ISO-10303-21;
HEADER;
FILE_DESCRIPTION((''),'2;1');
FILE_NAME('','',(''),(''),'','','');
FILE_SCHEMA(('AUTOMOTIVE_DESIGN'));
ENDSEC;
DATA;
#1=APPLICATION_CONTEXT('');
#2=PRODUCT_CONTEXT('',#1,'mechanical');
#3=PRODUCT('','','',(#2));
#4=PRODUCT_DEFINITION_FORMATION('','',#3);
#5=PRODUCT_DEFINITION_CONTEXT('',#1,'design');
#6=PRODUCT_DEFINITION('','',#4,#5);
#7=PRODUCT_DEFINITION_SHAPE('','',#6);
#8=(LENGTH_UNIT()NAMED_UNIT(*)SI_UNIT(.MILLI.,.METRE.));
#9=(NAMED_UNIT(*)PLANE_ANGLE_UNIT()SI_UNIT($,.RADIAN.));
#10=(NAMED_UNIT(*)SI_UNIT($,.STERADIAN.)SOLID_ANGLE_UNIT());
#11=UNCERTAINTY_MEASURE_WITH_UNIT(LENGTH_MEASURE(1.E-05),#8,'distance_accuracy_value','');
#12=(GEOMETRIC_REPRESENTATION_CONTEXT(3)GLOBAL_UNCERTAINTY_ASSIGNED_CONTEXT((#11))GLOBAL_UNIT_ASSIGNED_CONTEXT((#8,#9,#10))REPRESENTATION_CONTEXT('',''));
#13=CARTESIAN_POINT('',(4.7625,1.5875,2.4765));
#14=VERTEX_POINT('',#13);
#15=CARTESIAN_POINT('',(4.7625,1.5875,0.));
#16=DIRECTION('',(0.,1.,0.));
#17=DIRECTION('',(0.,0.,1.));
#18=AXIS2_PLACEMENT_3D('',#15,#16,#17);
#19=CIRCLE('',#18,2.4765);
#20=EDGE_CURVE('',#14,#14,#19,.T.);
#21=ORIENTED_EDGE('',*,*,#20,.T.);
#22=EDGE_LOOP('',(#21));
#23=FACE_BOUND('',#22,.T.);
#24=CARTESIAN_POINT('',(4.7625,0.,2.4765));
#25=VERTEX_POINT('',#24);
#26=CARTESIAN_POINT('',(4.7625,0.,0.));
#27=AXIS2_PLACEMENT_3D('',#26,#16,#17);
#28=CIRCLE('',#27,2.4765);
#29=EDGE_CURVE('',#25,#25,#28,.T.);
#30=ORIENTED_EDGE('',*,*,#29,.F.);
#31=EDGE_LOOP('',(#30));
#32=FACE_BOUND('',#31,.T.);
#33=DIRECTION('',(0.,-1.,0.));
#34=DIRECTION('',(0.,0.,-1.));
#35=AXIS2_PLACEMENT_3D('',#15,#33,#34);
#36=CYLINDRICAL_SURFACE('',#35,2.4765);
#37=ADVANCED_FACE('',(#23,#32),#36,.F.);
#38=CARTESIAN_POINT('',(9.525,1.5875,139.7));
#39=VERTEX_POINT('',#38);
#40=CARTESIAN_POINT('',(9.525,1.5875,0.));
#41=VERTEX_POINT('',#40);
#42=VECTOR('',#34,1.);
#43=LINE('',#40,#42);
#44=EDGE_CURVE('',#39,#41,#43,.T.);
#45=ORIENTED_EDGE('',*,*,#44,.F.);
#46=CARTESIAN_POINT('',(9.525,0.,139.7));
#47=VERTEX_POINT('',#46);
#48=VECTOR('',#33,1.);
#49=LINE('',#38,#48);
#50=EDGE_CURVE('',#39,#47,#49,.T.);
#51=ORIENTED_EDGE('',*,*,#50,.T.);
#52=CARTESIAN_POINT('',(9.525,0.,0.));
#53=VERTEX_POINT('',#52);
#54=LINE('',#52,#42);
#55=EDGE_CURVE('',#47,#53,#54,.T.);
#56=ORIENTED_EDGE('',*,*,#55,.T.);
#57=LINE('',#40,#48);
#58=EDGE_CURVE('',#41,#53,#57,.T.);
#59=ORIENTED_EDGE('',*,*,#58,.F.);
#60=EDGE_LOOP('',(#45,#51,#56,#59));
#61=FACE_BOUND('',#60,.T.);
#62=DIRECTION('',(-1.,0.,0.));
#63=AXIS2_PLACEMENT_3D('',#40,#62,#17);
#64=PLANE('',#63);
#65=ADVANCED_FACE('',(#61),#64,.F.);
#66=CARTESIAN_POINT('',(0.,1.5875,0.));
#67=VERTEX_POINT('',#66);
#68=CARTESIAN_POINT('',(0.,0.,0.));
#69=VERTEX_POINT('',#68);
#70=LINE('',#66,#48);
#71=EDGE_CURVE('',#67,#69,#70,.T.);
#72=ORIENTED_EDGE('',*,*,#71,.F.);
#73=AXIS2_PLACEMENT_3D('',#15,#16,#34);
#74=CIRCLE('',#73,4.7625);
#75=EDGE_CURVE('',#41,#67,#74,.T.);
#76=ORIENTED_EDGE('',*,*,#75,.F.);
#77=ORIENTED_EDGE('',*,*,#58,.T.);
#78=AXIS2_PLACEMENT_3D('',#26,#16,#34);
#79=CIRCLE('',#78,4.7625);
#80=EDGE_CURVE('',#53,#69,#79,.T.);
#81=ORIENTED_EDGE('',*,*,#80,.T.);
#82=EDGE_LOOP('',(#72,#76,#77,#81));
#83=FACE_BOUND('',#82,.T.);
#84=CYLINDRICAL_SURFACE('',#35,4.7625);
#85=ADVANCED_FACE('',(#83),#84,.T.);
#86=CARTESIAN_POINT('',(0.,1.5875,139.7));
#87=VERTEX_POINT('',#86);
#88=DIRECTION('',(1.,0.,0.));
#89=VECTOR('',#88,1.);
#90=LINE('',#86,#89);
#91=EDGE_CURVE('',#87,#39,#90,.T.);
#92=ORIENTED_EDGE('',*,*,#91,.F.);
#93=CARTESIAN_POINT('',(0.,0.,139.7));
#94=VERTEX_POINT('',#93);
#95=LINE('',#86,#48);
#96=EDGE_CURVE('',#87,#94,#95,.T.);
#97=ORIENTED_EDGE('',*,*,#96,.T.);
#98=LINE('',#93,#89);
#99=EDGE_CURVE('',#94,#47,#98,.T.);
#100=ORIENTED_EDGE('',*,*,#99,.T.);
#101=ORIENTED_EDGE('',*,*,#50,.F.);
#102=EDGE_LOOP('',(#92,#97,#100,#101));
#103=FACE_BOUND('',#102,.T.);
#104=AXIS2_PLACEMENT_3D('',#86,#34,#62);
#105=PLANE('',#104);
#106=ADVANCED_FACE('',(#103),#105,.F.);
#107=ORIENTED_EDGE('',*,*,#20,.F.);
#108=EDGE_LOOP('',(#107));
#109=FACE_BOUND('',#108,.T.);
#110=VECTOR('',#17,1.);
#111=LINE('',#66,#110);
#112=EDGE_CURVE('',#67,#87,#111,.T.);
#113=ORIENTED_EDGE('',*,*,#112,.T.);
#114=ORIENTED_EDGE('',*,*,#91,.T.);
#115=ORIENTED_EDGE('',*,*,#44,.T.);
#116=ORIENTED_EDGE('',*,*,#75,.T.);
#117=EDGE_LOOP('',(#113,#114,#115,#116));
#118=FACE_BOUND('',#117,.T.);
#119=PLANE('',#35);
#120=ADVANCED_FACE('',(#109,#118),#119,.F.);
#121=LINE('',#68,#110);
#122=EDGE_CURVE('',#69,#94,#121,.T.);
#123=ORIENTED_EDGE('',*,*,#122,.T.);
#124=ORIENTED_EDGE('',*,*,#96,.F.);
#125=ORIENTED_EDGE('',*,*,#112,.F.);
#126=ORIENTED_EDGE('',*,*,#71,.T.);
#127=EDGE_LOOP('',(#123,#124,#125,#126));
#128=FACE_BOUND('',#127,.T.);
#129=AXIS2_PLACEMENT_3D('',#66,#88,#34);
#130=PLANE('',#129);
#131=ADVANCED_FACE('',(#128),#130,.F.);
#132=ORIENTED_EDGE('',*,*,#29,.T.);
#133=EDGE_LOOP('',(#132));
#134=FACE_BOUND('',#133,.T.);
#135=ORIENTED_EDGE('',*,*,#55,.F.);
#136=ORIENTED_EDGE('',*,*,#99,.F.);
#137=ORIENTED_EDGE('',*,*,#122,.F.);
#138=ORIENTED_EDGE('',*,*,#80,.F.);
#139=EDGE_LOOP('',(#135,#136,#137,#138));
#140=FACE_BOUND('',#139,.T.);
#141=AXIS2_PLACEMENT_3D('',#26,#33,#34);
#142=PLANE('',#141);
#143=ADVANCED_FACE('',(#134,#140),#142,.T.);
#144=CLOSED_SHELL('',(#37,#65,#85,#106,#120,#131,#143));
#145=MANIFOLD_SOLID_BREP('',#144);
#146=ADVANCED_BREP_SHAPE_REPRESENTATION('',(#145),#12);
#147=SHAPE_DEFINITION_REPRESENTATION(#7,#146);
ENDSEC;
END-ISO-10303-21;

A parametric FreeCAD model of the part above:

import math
import FreeCAD as App
import Part
import Sketcher
from FreeCAD import Vector
Q = App.Units.Quantity

doc = App.newDocument("Part")
body = doc.addObject("PartDesign::Body", "Body")

# Sketch on XZ plane
sketch1 = body.newObject("Sketcher::SketchObject", "Sketch")
sketch1.AttachmentSupport = (doc.getObject("XZ_Plane"), [""])
sketch1.MapMode = "FlatFace"
sketch1.addGeometry([
    Part.LineSegment(Vector(0, 0, 0), Vector(0, 139.7, 0)),  # 0
    Part.LineSegment(Vector(0, 139.7, 0), Vector(9.5, 139.7, 0)),  # 1
    Part.LineSegment(Vector(9.5, 139.7, 0), Vector(9.5, 0, 0)),  # 2
    Part.ArcOfCircle(Part.Circle(Vector(4.8, 0, 0), Vector(0, 0, 1), 4.8), math.radians(180), math.radians(360)),  # 3
    Part.Circle(Vector(4.8, 0, 0), Vector(0, 0, 1), 2.5),  # 4
], False)
sketch1.addConstraint([
    Sketcher.Constraint("Coincident", 0, 2, 1, 1),
    Sketcher.Constraint("Coincident", 1, 2, 2, 1),
    Sketcher.Constraint("Tangent", 2, 2, 3, 2),
    Sketcher.Constraint("Tangent", 3, 1, 0, 1),
    Sketcher.Constraint("Vertical", 0),
    Sketcher.Constraint("Horizontal", 1),
    Sketcher.Constraint("Vertical", 2),
    Sketcher.Constraint("Coincident", 3, 1, -1, 1),
    Sketcher.Constraint("Coincident", 4, 3, 3, 3),
    Sketcher.Constraint("Diameter", 4, Q("0.195 in")),
    Sketcher.Constraint("DistanceY", 0, 1, 0, 2, Q("5.5 in")),
    Sketcher.Constraint("Radius", 3, Q("0.1875 in")),
])
pad1 = body.newObject("PartDesign::Pad", "Pad")
pad1.Profile = sketch1
pad1.Length = Q("0.0625 in")
pad1.Reversed = True

doc.recompute()
